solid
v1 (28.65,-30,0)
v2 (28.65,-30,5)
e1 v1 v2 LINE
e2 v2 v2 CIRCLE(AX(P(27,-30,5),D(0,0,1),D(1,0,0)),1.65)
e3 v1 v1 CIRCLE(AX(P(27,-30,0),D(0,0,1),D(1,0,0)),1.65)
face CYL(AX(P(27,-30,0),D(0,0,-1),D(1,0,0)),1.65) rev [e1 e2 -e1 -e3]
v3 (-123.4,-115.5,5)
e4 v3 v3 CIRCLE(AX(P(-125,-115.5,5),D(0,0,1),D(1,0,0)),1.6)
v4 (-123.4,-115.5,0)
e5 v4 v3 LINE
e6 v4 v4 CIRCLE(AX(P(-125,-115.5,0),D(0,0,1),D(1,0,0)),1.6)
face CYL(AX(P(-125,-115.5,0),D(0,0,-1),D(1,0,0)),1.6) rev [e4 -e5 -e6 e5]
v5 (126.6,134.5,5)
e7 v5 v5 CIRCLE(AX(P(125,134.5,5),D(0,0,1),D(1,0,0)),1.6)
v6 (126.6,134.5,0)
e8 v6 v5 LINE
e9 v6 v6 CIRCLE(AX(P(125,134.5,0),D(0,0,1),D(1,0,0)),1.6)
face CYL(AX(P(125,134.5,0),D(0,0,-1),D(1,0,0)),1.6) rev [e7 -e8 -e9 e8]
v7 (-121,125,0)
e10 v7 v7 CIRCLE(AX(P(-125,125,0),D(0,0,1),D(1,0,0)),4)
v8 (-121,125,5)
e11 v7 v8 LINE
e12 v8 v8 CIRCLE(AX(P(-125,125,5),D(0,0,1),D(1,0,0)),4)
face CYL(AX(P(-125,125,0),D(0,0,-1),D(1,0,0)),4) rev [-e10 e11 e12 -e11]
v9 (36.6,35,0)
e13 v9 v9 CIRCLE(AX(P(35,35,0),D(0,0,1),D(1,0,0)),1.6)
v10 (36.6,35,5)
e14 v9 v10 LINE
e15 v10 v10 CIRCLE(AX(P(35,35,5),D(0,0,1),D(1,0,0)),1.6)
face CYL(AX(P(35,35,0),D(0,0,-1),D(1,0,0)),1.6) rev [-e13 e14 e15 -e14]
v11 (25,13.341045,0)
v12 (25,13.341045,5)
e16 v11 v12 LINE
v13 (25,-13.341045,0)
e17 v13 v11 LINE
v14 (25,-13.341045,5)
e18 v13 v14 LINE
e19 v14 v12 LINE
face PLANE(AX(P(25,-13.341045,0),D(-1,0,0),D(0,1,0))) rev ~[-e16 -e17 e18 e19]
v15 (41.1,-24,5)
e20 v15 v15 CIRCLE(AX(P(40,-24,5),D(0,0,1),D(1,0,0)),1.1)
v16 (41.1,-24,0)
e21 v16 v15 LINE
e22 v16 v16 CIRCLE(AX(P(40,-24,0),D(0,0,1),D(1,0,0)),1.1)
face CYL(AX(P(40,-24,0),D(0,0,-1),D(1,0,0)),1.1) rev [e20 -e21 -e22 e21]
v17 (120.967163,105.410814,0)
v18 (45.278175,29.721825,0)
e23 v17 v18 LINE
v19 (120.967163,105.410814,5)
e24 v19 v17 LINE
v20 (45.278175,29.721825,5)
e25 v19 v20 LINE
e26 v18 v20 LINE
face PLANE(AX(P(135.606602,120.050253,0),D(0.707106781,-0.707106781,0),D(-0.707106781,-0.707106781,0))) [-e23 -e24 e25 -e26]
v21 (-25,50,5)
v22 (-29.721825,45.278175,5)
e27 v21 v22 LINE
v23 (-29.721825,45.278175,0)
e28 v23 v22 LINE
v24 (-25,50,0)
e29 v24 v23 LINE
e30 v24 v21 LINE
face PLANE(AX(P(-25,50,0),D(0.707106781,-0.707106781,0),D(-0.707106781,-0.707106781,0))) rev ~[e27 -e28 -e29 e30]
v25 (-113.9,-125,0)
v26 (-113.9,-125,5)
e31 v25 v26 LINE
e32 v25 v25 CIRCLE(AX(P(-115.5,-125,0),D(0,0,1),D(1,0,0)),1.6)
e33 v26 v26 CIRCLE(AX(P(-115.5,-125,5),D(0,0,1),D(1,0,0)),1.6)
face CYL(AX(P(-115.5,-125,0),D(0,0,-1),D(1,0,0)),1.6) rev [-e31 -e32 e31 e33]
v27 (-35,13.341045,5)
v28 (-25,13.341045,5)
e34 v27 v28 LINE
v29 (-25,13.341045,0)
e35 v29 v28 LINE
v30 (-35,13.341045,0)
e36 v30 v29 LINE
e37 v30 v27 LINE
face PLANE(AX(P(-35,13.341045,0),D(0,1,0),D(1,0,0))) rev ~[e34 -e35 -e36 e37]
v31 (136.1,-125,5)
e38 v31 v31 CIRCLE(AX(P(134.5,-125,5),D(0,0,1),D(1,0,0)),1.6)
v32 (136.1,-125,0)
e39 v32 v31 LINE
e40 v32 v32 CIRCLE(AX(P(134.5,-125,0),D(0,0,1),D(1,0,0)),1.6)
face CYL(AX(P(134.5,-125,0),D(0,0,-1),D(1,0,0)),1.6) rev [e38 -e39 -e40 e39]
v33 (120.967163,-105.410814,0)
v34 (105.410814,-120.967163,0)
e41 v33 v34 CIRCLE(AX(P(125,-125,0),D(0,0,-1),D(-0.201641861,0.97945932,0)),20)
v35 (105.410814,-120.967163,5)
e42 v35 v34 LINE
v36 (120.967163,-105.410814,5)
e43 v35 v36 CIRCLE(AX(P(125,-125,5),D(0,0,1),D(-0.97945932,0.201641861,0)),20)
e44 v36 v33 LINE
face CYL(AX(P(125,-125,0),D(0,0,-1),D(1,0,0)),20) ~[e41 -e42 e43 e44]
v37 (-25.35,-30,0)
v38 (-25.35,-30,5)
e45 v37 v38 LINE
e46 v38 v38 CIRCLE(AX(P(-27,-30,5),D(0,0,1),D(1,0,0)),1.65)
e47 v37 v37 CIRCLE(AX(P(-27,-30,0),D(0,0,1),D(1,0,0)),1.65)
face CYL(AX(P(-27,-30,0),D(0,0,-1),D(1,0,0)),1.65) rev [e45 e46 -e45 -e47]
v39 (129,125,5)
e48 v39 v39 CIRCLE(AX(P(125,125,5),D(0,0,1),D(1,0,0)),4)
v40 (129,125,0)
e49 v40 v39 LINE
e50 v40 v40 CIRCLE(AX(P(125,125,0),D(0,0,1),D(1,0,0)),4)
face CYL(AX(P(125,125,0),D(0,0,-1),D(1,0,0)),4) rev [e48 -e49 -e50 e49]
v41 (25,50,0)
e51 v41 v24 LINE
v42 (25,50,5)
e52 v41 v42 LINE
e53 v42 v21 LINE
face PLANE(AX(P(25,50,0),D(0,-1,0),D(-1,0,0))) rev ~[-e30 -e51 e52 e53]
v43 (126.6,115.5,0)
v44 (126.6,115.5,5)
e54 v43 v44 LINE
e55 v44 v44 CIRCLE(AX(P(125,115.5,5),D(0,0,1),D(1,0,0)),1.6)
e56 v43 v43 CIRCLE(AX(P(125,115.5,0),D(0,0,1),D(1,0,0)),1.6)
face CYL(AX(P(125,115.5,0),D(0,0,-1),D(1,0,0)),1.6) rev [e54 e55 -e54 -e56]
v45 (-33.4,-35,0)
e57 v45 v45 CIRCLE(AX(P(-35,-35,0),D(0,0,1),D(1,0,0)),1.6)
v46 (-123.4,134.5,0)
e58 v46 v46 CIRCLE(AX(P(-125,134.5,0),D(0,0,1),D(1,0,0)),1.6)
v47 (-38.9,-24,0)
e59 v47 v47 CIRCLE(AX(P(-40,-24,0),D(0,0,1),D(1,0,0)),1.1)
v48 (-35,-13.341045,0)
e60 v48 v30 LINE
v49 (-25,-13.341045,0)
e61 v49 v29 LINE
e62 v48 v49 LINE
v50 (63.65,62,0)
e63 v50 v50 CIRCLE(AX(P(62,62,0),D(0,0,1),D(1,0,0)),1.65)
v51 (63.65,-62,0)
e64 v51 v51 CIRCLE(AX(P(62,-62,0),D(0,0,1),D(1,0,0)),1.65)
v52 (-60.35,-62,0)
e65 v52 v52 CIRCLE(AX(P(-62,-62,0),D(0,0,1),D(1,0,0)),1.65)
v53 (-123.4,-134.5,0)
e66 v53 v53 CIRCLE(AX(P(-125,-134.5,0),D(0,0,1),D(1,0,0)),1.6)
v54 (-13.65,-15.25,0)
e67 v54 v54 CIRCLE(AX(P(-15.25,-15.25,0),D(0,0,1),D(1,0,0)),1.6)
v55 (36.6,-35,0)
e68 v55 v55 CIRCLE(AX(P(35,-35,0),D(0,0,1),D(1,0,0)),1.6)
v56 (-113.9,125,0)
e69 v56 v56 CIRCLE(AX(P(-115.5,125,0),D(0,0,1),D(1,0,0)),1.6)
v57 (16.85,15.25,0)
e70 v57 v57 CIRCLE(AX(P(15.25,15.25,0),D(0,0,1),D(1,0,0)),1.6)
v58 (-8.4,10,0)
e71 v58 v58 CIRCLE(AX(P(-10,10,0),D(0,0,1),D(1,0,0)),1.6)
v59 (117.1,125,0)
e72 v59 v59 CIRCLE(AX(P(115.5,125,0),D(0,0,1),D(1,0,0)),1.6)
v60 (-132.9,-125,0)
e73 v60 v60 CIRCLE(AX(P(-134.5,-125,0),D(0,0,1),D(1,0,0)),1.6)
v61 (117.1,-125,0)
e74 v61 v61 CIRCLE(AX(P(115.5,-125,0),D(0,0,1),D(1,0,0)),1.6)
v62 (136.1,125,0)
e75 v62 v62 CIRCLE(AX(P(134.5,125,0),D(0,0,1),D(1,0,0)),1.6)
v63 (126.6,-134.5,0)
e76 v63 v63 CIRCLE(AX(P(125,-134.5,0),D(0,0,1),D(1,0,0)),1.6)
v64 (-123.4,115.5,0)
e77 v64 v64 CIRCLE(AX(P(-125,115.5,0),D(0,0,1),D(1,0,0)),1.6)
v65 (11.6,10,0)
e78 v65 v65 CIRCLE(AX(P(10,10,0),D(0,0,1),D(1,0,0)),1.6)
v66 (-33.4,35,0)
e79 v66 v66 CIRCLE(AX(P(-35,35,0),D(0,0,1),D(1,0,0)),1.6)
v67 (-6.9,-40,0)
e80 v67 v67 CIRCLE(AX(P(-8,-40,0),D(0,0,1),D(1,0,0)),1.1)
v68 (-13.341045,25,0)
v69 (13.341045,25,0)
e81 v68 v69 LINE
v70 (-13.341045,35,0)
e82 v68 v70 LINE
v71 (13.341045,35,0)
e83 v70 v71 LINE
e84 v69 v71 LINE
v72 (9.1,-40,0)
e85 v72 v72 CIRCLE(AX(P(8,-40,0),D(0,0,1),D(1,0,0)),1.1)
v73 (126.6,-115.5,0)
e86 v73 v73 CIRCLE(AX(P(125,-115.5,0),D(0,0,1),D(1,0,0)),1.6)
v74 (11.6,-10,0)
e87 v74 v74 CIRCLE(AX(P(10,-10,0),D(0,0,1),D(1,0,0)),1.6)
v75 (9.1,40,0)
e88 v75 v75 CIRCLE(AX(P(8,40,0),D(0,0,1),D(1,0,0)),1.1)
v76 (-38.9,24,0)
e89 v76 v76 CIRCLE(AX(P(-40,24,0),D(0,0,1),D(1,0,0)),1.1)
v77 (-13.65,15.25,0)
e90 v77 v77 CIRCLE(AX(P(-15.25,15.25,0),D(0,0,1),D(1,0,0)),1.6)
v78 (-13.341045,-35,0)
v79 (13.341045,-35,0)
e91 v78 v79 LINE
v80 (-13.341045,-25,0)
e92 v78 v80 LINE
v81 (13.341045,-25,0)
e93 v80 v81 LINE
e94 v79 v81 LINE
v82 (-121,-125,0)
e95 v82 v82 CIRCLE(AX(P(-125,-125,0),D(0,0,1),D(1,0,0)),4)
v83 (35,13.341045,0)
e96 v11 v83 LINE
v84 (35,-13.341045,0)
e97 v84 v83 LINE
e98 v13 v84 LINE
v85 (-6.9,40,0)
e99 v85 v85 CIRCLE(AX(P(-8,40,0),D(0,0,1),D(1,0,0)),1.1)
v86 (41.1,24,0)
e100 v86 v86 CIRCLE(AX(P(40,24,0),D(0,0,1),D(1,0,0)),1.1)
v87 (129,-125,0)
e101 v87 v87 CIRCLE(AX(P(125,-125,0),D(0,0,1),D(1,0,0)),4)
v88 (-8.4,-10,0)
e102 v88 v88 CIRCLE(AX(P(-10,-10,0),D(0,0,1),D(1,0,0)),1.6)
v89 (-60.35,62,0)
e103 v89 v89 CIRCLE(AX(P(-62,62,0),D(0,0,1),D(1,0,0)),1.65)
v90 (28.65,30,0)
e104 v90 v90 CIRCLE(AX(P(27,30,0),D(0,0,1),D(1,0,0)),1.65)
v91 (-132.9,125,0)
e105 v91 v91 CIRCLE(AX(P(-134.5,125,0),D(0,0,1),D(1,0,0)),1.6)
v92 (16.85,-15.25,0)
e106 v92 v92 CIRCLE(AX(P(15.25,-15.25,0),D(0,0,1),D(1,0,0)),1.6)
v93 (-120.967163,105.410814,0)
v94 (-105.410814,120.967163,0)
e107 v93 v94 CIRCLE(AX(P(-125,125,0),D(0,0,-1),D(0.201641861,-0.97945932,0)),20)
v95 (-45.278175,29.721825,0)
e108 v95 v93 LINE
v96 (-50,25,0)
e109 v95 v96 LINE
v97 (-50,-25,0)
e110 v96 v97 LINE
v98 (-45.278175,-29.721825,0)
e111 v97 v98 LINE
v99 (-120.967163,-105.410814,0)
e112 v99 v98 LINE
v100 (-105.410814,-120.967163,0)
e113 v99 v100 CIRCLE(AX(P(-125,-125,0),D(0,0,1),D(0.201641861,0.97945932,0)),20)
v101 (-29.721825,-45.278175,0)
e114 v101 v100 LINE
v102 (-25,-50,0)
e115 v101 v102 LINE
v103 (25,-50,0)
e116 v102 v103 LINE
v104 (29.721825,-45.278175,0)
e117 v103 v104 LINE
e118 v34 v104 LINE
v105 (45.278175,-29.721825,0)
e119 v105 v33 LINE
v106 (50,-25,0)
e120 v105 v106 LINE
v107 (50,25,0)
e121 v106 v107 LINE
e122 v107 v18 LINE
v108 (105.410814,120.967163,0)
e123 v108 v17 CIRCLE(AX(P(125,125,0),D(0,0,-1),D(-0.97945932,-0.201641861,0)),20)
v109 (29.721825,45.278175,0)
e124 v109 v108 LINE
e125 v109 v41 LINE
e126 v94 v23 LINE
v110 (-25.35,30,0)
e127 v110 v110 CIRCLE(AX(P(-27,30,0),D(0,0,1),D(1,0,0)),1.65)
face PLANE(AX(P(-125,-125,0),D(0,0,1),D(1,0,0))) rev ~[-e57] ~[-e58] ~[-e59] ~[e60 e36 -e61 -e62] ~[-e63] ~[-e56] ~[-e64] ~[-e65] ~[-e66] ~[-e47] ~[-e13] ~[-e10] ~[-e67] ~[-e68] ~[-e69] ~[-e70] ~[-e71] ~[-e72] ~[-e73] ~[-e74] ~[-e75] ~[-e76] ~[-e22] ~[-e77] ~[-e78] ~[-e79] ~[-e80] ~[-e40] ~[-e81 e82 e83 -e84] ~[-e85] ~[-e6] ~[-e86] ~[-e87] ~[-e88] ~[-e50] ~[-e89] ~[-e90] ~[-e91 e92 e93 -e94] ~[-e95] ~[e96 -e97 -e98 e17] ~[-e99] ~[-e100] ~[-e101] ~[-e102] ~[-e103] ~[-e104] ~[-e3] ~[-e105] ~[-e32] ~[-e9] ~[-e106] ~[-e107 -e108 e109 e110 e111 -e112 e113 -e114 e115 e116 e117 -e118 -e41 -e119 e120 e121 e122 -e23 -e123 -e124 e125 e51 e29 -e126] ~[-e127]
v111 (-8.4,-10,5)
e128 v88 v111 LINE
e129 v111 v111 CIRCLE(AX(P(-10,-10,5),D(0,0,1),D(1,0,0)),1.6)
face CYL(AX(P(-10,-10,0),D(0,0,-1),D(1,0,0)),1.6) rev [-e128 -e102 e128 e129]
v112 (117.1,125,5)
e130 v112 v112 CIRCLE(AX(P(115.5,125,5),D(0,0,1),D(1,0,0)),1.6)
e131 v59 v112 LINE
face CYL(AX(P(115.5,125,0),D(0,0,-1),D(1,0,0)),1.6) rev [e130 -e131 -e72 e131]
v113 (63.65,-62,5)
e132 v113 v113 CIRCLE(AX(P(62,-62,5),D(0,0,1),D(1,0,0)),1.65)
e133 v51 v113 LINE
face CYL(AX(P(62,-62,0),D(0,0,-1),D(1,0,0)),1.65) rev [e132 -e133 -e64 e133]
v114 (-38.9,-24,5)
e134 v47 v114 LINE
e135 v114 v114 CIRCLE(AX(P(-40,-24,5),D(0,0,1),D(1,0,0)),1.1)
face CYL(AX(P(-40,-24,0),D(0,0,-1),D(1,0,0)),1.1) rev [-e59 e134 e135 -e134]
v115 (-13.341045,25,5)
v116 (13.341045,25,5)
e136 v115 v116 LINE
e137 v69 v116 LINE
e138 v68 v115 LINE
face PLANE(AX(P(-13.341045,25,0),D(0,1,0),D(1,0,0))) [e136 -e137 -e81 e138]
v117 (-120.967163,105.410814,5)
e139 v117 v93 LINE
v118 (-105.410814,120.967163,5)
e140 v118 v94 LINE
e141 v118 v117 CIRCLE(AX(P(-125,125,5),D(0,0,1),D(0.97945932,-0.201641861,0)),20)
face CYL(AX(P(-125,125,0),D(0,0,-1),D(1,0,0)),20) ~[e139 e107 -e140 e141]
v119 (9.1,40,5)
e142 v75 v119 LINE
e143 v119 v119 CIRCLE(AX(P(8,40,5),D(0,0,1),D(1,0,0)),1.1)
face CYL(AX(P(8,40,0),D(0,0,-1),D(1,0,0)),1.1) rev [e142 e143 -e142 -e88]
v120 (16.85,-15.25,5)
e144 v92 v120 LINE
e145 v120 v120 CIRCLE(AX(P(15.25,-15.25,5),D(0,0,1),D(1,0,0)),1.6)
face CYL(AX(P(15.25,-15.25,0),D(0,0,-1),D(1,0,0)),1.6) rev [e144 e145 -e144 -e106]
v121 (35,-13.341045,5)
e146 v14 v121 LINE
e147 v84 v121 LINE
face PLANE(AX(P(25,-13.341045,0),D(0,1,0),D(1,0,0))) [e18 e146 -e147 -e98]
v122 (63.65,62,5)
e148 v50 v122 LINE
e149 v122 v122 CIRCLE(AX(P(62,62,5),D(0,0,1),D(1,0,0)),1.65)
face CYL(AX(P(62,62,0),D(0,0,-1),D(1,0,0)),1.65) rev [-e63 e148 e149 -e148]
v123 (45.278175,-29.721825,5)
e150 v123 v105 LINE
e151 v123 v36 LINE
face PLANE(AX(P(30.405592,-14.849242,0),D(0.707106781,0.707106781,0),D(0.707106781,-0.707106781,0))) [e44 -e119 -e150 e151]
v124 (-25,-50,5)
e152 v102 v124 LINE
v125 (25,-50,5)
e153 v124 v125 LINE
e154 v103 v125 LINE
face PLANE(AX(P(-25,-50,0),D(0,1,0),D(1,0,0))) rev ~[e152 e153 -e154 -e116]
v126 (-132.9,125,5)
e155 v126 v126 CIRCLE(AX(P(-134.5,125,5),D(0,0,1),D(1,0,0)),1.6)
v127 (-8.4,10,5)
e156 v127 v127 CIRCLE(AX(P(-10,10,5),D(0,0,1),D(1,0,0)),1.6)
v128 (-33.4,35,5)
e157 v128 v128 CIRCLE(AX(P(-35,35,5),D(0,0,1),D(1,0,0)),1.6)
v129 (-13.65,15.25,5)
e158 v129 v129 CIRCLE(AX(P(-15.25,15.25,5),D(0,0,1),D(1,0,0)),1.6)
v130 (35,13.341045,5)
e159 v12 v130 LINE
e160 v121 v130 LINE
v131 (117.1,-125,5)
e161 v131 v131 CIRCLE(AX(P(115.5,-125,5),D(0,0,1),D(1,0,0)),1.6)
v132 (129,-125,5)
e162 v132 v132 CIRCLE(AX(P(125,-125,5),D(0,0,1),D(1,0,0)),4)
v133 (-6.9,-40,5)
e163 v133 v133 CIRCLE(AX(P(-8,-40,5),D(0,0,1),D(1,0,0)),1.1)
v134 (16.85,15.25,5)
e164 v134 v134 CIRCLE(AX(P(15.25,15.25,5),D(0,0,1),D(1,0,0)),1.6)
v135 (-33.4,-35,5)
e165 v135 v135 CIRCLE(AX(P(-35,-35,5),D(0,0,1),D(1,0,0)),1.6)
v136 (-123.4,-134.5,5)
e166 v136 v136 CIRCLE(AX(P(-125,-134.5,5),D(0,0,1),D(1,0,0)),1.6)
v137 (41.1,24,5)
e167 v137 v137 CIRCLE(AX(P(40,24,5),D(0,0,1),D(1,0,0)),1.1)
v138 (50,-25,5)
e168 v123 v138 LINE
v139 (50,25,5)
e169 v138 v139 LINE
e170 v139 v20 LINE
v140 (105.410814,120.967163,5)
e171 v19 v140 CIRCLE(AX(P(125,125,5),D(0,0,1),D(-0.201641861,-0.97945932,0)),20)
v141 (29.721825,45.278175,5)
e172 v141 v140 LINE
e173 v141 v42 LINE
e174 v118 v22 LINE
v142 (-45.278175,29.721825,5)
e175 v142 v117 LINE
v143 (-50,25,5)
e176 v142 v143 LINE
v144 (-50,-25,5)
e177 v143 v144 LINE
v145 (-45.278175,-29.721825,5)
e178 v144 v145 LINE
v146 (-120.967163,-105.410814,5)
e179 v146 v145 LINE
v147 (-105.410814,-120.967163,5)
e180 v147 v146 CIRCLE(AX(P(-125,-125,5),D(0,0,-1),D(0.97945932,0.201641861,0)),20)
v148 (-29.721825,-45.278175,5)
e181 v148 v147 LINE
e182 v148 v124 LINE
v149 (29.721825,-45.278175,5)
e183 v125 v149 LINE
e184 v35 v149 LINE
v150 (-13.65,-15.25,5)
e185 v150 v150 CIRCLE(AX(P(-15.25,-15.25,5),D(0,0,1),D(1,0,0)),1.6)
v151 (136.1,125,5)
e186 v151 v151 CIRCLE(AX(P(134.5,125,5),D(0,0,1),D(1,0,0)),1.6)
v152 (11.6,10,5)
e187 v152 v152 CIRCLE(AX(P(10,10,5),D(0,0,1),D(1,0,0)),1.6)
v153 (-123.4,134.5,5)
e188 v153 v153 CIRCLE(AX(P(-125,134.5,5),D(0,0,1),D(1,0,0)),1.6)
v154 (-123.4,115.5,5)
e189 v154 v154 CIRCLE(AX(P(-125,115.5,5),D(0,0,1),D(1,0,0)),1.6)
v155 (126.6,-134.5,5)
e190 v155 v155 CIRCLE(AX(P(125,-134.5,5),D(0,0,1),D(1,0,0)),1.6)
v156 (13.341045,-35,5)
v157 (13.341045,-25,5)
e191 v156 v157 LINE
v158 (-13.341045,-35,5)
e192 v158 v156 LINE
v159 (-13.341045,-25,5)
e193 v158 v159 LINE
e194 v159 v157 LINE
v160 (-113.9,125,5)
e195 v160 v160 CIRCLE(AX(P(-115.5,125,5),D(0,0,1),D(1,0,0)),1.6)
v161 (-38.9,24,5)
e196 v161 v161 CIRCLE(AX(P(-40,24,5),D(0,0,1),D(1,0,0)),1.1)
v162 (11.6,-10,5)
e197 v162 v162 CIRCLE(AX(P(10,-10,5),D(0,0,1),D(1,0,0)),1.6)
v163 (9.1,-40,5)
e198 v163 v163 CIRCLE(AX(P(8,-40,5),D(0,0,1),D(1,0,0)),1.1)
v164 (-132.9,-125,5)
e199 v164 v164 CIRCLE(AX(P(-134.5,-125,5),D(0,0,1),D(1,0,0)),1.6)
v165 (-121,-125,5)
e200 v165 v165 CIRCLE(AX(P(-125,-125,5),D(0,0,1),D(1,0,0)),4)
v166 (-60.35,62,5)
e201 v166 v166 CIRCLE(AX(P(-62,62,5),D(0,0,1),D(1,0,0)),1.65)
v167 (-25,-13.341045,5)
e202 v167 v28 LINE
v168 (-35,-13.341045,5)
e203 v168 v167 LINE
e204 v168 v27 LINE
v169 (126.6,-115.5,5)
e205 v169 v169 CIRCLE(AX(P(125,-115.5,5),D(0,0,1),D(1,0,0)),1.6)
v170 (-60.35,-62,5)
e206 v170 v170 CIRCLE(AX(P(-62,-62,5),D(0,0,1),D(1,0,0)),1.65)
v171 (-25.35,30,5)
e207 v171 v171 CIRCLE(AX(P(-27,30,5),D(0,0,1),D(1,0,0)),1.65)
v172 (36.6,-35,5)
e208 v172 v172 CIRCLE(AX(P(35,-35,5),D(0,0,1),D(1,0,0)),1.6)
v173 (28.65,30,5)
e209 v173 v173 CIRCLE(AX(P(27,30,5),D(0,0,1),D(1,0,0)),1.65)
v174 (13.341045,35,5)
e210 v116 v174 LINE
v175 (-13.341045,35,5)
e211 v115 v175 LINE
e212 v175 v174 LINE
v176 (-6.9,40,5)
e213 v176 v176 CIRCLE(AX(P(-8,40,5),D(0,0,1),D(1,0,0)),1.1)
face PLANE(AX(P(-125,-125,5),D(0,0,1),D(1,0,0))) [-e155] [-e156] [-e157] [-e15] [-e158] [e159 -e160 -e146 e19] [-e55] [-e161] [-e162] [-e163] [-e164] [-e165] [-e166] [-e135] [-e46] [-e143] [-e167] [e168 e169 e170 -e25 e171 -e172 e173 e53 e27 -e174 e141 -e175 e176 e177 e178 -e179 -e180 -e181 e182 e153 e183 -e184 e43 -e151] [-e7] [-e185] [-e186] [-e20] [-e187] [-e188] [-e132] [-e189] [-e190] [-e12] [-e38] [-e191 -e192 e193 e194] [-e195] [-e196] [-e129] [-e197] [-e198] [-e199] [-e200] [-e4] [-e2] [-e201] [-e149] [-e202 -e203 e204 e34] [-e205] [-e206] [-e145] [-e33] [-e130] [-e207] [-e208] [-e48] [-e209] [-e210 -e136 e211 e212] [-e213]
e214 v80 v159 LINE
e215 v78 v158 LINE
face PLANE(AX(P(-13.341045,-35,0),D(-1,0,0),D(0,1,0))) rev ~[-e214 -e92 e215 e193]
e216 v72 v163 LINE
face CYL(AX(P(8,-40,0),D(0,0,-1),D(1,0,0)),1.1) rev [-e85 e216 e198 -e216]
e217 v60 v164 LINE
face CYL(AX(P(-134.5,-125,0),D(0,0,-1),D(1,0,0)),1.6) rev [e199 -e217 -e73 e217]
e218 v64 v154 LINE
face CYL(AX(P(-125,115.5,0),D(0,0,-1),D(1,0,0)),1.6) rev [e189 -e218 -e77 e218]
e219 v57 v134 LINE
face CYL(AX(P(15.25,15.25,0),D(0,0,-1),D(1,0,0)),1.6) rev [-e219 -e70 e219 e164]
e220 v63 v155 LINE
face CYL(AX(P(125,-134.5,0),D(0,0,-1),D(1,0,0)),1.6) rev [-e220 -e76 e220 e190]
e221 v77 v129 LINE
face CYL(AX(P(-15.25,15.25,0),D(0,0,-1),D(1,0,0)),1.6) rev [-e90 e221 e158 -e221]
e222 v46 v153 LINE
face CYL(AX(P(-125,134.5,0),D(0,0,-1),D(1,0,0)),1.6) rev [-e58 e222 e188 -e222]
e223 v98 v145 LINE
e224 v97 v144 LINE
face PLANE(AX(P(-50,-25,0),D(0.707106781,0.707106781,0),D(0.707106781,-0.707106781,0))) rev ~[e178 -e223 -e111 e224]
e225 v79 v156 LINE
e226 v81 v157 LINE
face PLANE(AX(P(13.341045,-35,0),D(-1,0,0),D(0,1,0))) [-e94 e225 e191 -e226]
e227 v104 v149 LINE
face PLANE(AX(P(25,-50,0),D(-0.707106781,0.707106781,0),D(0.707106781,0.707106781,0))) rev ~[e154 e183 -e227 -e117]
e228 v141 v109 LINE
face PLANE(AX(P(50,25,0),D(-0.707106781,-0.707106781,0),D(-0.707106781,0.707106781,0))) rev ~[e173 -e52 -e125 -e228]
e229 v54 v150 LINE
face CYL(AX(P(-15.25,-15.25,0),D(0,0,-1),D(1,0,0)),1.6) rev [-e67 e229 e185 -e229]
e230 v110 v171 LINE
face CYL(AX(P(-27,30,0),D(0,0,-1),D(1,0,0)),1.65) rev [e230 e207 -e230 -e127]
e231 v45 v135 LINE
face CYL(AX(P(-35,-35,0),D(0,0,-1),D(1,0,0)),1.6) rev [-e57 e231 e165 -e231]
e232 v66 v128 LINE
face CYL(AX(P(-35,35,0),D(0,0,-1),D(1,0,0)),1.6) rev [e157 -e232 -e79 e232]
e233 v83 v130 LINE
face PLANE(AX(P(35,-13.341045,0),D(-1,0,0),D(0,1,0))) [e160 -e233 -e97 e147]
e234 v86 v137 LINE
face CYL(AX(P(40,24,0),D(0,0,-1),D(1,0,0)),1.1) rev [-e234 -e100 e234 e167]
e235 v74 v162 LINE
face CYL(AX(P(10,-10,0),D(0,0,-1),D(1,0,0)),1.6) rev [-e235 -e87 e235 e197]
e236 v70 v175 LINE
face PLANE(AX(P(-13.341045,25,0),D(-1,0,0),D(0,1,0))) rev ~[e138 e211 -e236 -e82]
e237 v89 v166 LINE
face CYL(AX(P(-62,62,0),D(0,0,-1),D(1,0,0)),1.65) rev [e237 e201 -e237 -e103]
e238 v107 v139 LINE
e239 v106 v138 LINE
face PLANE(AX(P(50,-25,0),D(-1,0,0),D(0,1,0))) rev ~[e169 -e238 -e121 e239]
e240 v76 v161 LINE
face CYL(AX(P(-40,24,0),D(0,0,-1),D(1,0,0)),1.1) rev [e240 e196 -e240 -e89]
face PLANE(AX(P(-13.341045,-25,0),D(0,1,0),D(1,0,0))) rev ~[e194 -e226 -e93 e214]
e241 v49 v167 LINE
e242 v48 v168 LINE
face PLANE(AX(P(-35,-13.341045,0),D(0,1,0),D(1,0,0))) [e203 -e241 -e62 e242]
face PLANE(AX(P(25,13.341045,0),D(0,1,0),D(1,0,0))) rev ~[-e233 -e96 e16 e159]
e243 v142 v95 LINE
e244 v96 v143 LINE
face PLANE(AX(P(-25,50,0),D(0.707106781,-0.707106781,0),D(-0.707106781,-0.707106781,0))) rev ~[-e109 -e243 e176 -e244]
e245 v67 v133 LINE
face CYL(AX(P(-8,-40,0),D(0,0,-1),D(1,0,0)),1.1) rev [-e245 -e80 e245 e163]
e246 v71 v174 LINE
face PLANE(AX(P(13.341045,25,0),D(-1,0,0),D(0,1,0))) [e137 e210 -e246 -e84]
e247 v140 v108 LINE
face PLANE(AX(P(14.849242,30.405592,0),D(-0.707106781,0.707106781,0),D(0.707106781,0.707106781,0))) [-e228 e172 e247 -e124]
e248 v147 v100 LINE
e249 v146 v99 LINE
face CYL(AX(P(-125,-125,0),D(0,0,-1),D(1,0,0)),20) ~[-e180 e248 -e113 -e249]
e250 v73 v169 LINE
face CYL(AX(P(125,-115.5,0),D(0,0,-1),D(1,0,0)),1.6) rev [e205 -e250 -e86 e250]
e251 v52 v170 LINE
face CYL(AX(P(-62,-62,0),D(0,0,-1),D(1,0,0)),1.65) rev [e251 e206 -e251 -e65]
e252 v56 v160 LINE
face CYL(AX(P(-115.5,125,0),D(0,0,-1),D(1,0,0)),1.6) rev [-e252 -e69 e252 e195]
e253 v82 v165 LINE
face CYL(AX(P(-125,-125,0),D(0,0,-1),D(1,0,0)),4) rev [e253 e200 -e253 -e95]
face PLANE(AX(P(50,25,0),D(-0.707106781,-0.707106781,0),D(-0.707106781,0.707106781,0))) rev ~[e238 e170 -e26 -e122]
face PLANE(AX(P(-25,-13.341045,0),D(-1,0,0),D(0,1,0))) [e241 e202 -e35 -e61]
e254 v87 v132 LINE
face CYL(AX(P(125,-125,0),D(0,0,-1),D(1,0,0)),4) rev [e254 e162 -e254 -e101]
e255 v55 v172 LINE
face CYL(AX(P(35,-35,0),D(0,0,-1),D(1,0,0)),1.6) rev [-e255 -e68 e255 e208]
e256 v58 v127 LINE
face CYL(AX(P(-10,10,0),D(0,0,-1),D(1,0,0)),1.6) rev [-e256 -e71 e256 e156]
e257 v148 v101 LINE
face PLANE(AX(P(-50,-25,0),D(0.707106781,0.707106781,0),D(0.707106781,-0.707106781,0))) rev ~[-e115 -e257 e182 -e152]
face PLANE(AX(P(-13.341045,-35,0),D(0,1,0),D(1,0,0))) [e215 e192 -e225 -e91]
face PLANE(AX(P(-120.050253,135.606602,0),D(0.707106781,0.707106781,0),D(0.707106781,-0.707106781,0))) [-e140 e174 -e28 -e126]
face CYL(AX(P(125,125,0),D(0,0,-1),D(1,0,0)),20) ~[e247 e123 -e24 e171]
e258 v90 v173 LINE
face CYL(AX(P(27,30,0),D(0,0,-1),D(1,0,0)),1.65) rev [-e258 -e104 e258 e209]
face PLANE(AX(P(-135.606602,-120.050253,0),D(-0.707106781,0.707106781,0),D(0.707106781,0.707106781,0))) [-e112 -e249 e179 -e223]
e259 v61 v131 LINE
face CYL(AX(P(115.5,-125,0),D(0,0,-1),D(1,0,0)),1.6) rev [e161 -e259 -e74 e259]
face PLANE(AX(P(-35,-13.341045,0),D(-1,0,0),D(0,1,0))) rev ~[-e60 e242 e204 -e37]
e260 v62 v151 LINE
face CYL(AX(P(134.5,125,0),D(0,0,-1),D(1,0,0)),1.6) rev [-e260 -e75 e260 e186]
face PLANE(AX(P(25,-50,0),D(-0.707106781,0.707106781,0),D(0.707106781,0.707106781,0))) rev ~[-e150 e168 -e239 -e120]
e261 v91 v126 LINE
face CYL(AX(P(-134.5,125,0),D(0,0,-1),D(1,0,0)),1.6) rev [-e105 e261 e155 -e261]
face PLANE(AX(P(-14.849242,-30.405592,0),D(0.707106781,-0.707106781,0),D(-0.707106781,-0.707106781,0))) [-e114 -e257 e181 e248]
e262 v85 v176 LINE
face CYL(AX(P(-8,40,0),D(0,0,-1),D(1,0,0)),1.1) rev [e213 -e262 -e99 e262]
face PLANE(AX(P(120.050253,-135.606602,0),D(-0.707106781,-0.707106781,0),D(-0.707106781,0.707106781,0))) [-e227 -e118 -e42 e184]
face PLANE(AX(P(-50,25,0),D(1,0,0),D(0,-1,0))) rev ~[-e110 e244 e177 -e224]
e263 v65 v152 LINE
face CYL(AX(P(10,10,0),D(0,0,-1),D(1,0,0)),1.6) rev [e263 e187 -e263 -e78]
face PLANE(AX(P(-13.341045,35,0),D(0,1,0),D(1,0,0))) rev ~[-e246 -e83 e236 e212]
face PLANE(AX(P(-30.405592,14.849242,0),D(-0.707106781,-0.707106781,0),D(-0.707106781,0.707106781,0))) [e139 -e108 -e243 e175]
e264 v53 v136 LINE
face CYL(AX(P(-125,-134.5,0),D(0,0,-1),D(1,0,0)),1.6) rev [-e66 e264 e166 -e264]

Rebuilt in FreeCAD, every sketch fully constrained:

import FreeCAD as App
import Part
import Sketcher
Q = App.Units.Quantity

doc = App.newDocument("Part")
body = doc.addObject("PartDesign::Body", "Body")

sketch1 = body.newObject("Sketcher::SketchObject", "Sketch")
sketch1.AttachmentSupport = (doc.getObject("XY_Plane"), [""])
sketch1.MapMode = "FlatFace"
sketch1.addGeometry(Part.LineSegment(App.Vector(50, 25, 0), App.Vector(25, 50, 0)), False)
sketch1.addGeometry(Part.LineSegment(App.Vector(25, 50, 0), App.Vector(-25, 50, 0)), False)
sketch1.addGeometry(Part.LineSegment(App.Vector(-25, 50, 0), App.Vector(-50, 25, 0)), False)
sketch1.addGeometry(Part.LineSegment(App.Vector(-50, 25, 0), App.Vector(-50, -25, 0)), False)
sketch1.addGeometry(Part.LineSegment(App.Vector(-50, -25, 0), App.Vector(-25, -50, 0)), False)
sketch1.addGeometry(Part.LineSegment(App.Vector(-25, -50, 0), App.Vector(25, -50, 0)), False)
sketch1.addGeometry(Part.LineSegment(App.Vector(25, -50, 0), App.Vector(50, -25, 0)), False)
sketch1.addGeometry(Part.LineSegment(App.Vector(50, -25, 0), App.Vector(50, 25, 0)), False)
sketch1.addConstraint(Sketcher.Constraint("Coincident", 0, 2, 1, 1))
sketch1.addConstraint(Sketcher.Constraint("Coincident", 1, 2, 2, 1))
sketch1.addConstraint(Sketcher.Constraint("Coincident", 2, 2, 3, 1))
sketch1.addConstraint(Sketcher.Constraint("Coincident", 3, 2, 4, 1))
sketch1.addConstraint(Sketcher.Constraint("Coincident", 4, 2, 5, 1))
sketch1.addConstraint(Sketcher.Constraint("Coincident", 5, 2, 6, 1))
sketch1.addConstraint(Sketcher.Constraint("Coincident", 6, 2, 7, 1))
sketch1.addConstraint(Sketcher.Constraint("Coincident", 7, 2, 0, 1))
sketch1.addConstraint(Sketcher.Constraint("Horizontal", 1))
sketch1.addConstraint(Sketcher.Constraint("Vertical", 3))
sketch1.addConstraint(Sketcher.Constraint("Horizontal", 5))
sketch1.addConstraint(Sketcher.Constraint("Vertical", 7))
sketch1.addConstraint(Sketcher.Constraint("Symmetric", 0, 2, 4, 2, -1, 1))
sketch1.addConstraint(Sketcher.Constraint("Symmetric", 2, 2, 6, 2, -1, 1))
sketch1.addConstraint(Sketcher.Constraint("Perpendicular", 0, 2))
sketch1.addConstraint(Sketcher.Constraint("Perpendicular", 2, 4))
sketch1.addConstraint(Sketcher.Constraint("Perpendicular", 4, 6))
sketch1.addConstraint(Sketcher.Constraint("Horizontal", 3, 2, 6, 2))
sketch1.addConstraint(Sketcher.Constraint("Vertical", 1, 2, 4, 2))
sketch1.addConstraint(Sketcher.Constraint("Equal", 5, 3))
sketch1.addConstraint(Sketcher.Constraint("DistanceX", 1, 2, 1, 1, Q("50 mm")))
sketch1.addConstraint(Sketcher.Constraint("DistanceY", -1, 1, 0, 2, Q("50 mm")))
pad1 = body.newObject("PartDesign::Pad", "Pad")
pad1.Profile = sketch1
pad1.Length = 5

sketch2 = body.newObject("Sketcher::SketchObject", "Sketch001")
sketch2.AttachmentSupport = (doc.getObject("XY_Plane"), [""])
sketch2.MapMode = "FlatFace"
sketch2.addGeometry(Part.LineSegment(App.Vector(120, 136, 0), App.Vector(15, 30, 0)), False)
sketch2.addGeometry(Part.LineSegment(App.Vector(15, 30, 0), App.Vector(30, 15, 0)), False)
sketch2.addGeometry(Part.LineSegment(App.Vector(30, 15, 0), App.Vector(136, 120, 0)), False)
sketch2.addGeometry(Part.LineSegment(App.Vector(136, 120, 0), App.Vector(120, 136, 0)), False)
sketch2.addGeometry(Part.LineSegment(App.Vector(-136, 120, 0), App.Vector(-30, 15, 0)), False)
sketch2.addGeometry(Part.LineSegment(App.Vector(-30, 15, 0), App.Vector(-15, 30, 0)), False)
sketch2.addGeometry(Part.LineSegment(App.Vector(-15, 30, 0), App.Vector(-120, 136, 0)), False)
sketch2.addGeometry(Part.LineSegment(App.Vector(-120, 136, 0), App.Vector(-136, 120, 0)), False)
sketch2.addGeometry(Part.LineSegment(App.Vector(-120, -136, 0), App.Vector(-15, -30, 0)), False)
sketch2.addGeometry(Part.LineSegment(App.Vector(-15, -30, 0), App.Vector(-30, -15, 0)), False)
sketch2.addGeometry(Part.LineSegment(App.Vector(-30, -15, 0), App.Vector(-136, -120, 0)), False)
sketch2.addGeometry(Part.LineSegment(App.Vector(-136, -120, 0), App.Vector(-120, -136, 0)), False)
sketch2.addGeometry(Part.LineSegment(App.Vector(136, -120, 0), App.Vector(30, -15, 0)), False)
sketch2.addGeometry(Part.LineSegment(App.Vector(30, -15, 0), App.Vector(15, -30, 0)), False)
sketch2.addGeometry(Part.LineSegment(App.Vector(15, -30, 0), App.Vector(120, -136, 0)), False)
sketch2.addGeometry(Part.LineSegment(App.Vector(120, -136, 0), App.Vector(136, -120, 0)), False)
sketch2.addConstraint(Sketcher.Constraint("Coincident", 0, 2, 1, 1))
sketch2.addConstraint(Sketcher.Constraint("Coincident", 1, 2, 2, 1))
sketch2.addConstraint(Sketcher.Constraint("Coincident", 2, 2, 3, 1))
sketch2.addConstraint(Sketcher.Constraint("Coincident", 3, 2, 0, 1))
sketch2.addConstraint(Sketcher.Constraint("Coincident", 4, 2, 5, 1))
sketch2.addConstraint(Sketcher.Constraint("Coincident", 5, 2, 6, 1))
sketch2.addConstraint(Sketcher.Constraint("Coincident", 6, 2, 7, 1))
sketch2.addConstraint(Sketcher.Constraint("Coincident", 7, 2, 4, 1))
sketch2.addConstraint(Sketcher.Constraint("Coincident", 8, 2, 9, 1))
sketch2.addConstraint(Sketcher.Constraint("Coincident", 9, 2, 10, 1))
sketch2.addConstraint(Sketcher.Constraint("Coincident", 10, 2, 11, 1))
sketch2.addConstraint(Sketcher.Constraint("Coincident", 11, 2, 8, 1))
sketch2.addConstraint(Sketcher.Constraint("Coincident", 12, 2, 13, 1))
sketch2.addConstraint(Sketcher.Constraint("Coincident", 13, 2, 14, 1))
sketch2.addConstraint(Sketcher.Constraint("Coincident", 14, 2, 15, 1))
sketch2.addConstraint(Sketcher.Constraint("Coincident", 15, 2, 12, 1))
sketch2.addConstraint(Sketcher.Constraint("Symmetric", 0, 2, 8, 2, -1, 1))
sketch2.addConstraint(Sketcher.Constraint("Symmetric", 1, 2, 9, 2, -1, 1))
sketch2.addConstraint(Sketcher.Constraint("Symmetric", 2, 2, 10, 2, -1, 1))
sketch2.addConstraint(Sketcher.Constraint("Symmetric", 3, 2, 11, 2, -1, 1))
sketch2.addConstraint(Sketcher.Constraint("Symmetric", 4, 2, 12, 2, -1, 1))
sketch2.addConstraint(Sketcher.Constraint("Symmetric", 5, 2, 13, 2, -1, 1))
sketch2.addConstraint(Sketcher.Constraint("Symmetric", 6, 2, 14, 2, -1, 1))
sketch2.addConstraint(Sketcher.Constraint("Symmetric", 7, 2, 15, 2, -1, 1))
sketch2.addConstraint(Sketcher.Constraint("Symmetric", 1, 2, 4, 2, -2))
sketch2.addConstraint(Sketcher.Constraint("Symmetric", 0, 2, 5, 2, -2))
sketch2.addConstraint(Sketcher.Constraint("Symmetric", 3, 2, 6, 2, -2))
sketch2.addConstraint(Sketcher.Constraint("Symmetric", 2, 2, 7, 2, -2))
sketch2.addConstraint(Sketcher.Constraint("Perpendicular", 0, 1))
sketch2.addConstraint(Sketcher.Constraint("Perpendicular", 1, 2))
sketch2.addConstraint(Sketcher.Constraint("Perpendicular", 2, 3))
sketch2.addConstraint(Sketcher.Constraint("Parallel", 3, 4))
sketch2.addConstraint(Sketcher.Constraint("Distance", 1, Q("22 mm")))
sketch2.addConstraint(Sketcher.Constraint("DistanceX", -1, 1, 2, 2, Q("135.606602 mm")))
sketch2.addConstraint(Sketcher.Constraint("DistanceY", -1, 1, 3, 2, Q("135.606602 mm")))
sketch2.addConstraint(Sketcher.Constraint("DistanceY", -1, 1, 0, 2, Q("30.405592 mm")))
pad2 = body.newObject("PartDesign::Pad", "Pad001")
pad2.Profile = sketch2
pad2.Length = 5

sketch3 = body.newObject("Sketcher::SketchObject", "Sketch002")
sketch3.AttachmentSupport = (doc.getObject("XY_Plane"), [""])
sketch3.MapMode = "FlatFace"
sketch3.addGeometry(Part.Circle(App.Vector(-125, -125, 0), App.Vector(0, 0, 1), 20), False)
sketch3.addGeometry(Part.Circle(App.Vector(-125, 125, 0), App.Vector(0, 0, 1), 20), False)
sketch3.addGeometry(Part.Circle(App.Vector(125, -125, 0), App.Vector(0, 0, 1), 20), False)
sketch3.addGeometry(Part.Circle(App.Vector(125, 125, 0), App.Vector(0, 0, 1), 20), False)
sketch3.addConstraint(Sketcher.Constraint("Equal", 0, 1))
sketch3.addConstraint(Sketcher.Constraint("Equal", 1, 2))
sketch3.addConstraint(Sketcher.Constraint("Equal", 2, 3))
sketch3.addConstraint(Sketcher.Constraint("Symmetric", 1, 3, 2, 3, -1, 1))
sketch3.addConstraint(Sketcher.Constraint("Symmetric", 0, 3, 3, 3, -1, 1))
sketch3.addConstraint(Sketcher.Constraint("Symmetric", 0, 3, 2, 3, -2))
sketch3.addConstraint(Sketcher.Constraint("Diameter", 0, Q("40 mm")))
sketch3.addConstraint(Sketcher.Constraint("DistanceX", 0, 3, -1, 1, Q("125 mm")))
sketch3.addConstraint(Sketcher.Constraint("DistanceY", 0, 3, -1, 1, Q("125 mm")))
pad3 = body.newObject("PartDesign::Pad", "Pad002")
pad3.Profile = sketch3
pad3.Length = 5

sketch4 = body.newObject("Sketcher::SketchObject", "Sketch003")
sketch4.AttachmentSupport = (doc.getObject("XY_Plane"), [""])
sketch4.MapMode = "FlatFace"
sketch4.addGeometry(Part.Circle(App.Vector(-125, -125, 0), App.Vector(0, 0, 1), 4), False)
sketch4.addGeometry(Part.Circle(App.Vector(-35, -35, 0), App.Vector(0, 0, 1), 1.6), False)
sketch4.addGeometry(Part.Circle(App.Vector(-8, -40, 0), App.Vector(0, 0, 1), 1.1), False)
sketch4.addGeometry(Part.Circle(App.Vector(-125, 125, 0), App.Vector(0, 0, 1), 4), False)
sketch4.addGeometry(Part.Circle(App.Vector(-35, 35, 0), App.Vector(0, 0, 1), 1.6), False)
sketch4.addGeometry(Part.Circle(App.Vector(-8, 40, 0), App.Vector(0, 0, 1), 1.1), False)
sketch4.addGeometry(Part.Circle(App.Vector(125, -125, 0), App.Vector(0, 0, 1), 4), False)
sketch4.addGeometry(Part.Circle(App.Vector(35, -35, 0), App.Vector(0, 0, 1), 1.6), False)
sketch4.addGeometry(Part.Circle(App.Vector(8, -40, 0), App.Vector(0, 0, 1), 1.1), False)
sketch4.addGeometry(Part.Circle(App.Vector(125, 125, 0), App.Vector(0, 0, 1), 4), False)
sketch4.addGeometry(Part.Circle(App.Vector(35, 35, 0), App.Vector(0, 0, 1), 1.6), False)
sketch4.addGeometry(Part.Circle(App.Vector(8, 40, 0), App.Vector(0, 0, 1), 1.1), False)
sketch4.addGeometry(Part.Circle(App.Vector(-15.2, -15.2, 0), App.Vector(0, 0, 1), 1.6), False)
sketch4.addGeometry(Part.Circle(App.Vector(-15.2, 15.2, 0), App.Vector(0, 0, 1), 1.6), False)
sketch4.addGeometry(Part.Circle(App.Vector(15.2, -15.2, 0), App.Vector(0, 0, 1), 1.6), False)
sketch4.addGeometry(Part.Circle(App.Vector(15.2, 15.2, 0), App.Vector(0, 0, 1), 1.6), False)
sketch4.addGeometry(Part.Circle(App.Vector(-10, -10, 0), App.Vector(0, 0, 1), 1.6), False)
sketch4.addGeometry(Part.Circle(App.Vector(-10, 10, 0), App.Vector(0, 0, 1), 1.6), False)
sketch4.addGeometry(Part.Circle(App.Vector(10, -10, 0), App.Vector(0, 0, 1), 1.6), False)
sketch4.addGeometry(Part.Circle(App.Vector(10, 10, 0), App.Vector(0, 0, 1), 1.6), False)
sketch4.addGeometry(Part.Circle(App.Vector(-134.5, -125, 0), App.Vector(0, 0, 1), 1.6), False)
sketch4.addGeometry(Part.Circle(App.Vector(-125, -134.5, 0), App.Vector(0, 0, 1), 1.6), False)
sketch4.addGeometry(Part.Circle(App.Vector(-115.5, -125, 0), App.Vector(0, 0, 1), 1.6), False)
sketch4.addGeometry(Part.Circle(App.Vector(-125, -115.5, 0), App.Vector(0, 0, 1), 1.6), False)
sketch4.addGeometry(Part.Circle(App.Vector(-134.5, 125, 0), App.Vector(0, 0, 1), 1.6), False)
sketch4.addGeometry(Part.Circle(App.Vector(-125, 115.5, 0), App.Vector(0, 0, 1), 1.6), False)
sketch4.addGeometry(Part.Circle(App.Vector(-115.5, 125, 0), App.Vector(0, 0, 1), 1.6), False)
sketch4.addGeometry(Part.Circle(App.Vector(-125, 134.5, 0), App.Vector(0, 0, 1), 1.6), False)
sketch4.addGeometry(Part.Circle(App.Vector(115.5, -125, 0), App.Vector(0, 0, 1), 1.6), False)
sketch4.addGeometry(Part.Circle(App.Vector(125, -134.5, 0), App.Vector(0, 0, 1), 1.6), False)
sketch4.addGeometry(Part.Circle(App.Vector(134.5, -125, 0), App.Vector(0, 0, 1), 1.6), False)
sketch4.addGeometry(Part.Circle(App.Vector(125, -115.5, 0), App.Vector(0, 0, 1), 1.6), False)
sketch4.addGeometry(Part.Circle(App.Vector(115.5, 125, 0), App.Vector(0, 0, 1), 1.6), False)
sketch4.addGeometry(Part.Circle(App.Vector(125, 115.5, 0), App.Vector(0, 0, 1), 1.6), False)
sketch4.addGeometry(Part.Circle(App.Vector(134.5, 125, 0), App.Vector(0, 0, 1), 1.6), False)
sketch4.addGeometry(Part.Circle(App.Vector(125, 134.5, 0), App.Vector(0, 0, 1), 1.6), False)
sketch4.addConstraint(Sketcher.Constraint("Equal", 0, 3))
sketch4.addConstraint(Sketcher.Constraint("Equal", 1, 4))
sketch4.addConstraint(Sketcher.Constraint("Equal", 2, 5))
sketch4.addConstraint(Sketcher.Constraint("Equal", 3, 6))
sketch4.addConstraint(Sketcher.Constraint("Equal", 4, 7))
sketch4.addConstraint(Sketcher.Constraint("Equal", 5, 8))
sketch4.addConstraint(Sketcher.Constraint("Equal", 6, 9))
sketch4.addConstraint(Sketcher.Constraint("Equal", 7, 10))
sketch4.addConstraint(Sketcher.Constraint("Equal", 8, 11))
sketch4.addConstraint(Sketcher.Constraint("Equal", 10, 12))
sketch4.addConstraint(Sketcher.Constraint("Equal", 12, 13))
sketch4.addConstraint(Sketcher.Constraint("Equal", 13, 14))
sketch4.addConstraint(Sketcher.Constraint("Equal", 14, 15))
sketch4.addConstraint(Sketcher.Constraint("Equal", 15, 16))
sketch4.addConstraint(Sketcher.Constraint("Equal", 16, 17))
sketch4.addConstraint(Sketcher.Constraint("Equal", 17, 18))
sketch4.addConstraint(Sketcher.Constraint("Equal", 18, 19))
sketch4.addConstraint(Sketcher.Constraint("Equal", 19, 20))
sketch4.addConstraint(Sketcher.Constraint("Equal", 20, 21))
sketch4.addConstraint(Sketcher.Constraint("Equal", 21, 22))
sketch4.addConstraint(Sketcher.Constraint("Equal", 22, 23))
sketch4.addConstraint(Sketcher.Constraint("Equal", 23, 24))
sketch4.addConstraint(Sketcher.Constraint("Equal", 24, 25))
sketch4.addConstraint(Sketcher.Constraint("Equal", 25, 26))
sketch4.addConstraint(Sketcher.Constraint("Equal", 26, 27))
sketch4.addConstraint(Sketcher.Constraint("Equal", 27, 28))
sketch4.addConstraint(Sketcher.Constraint("Equal", 28, 29))
sketch4.addConstraint(Sketcher.Constraint("Equal", 29, 30))
sketch4.addConstraint(Sketcher.Constraint("Equal", 30, 31))
sketch4.addConstraint(Sketcher.Constraint("Equal", 31, 32))
sketch4.addConstraint(Sketcher.Constraint("Equal", 32, 33))
sketch4.addConstraint(Sketcher.Constraint("Equal", 33, 34))
sketch4.addConstraint(Sketcher.Constraint("Equal", 34, 35))
sketch4.addConstraint(Sketcher.Constraint("Symmetric", 3, 3, 6, 3, -1, 1))
sketch4.addConstraint(Sketcher.Constraint("Symmetric", 4, 3, 7, 3, -1, 1))
sketch4.addConstraint(Sketcher.Constraint("Symmetric", 5, 3, 8, 3, -1, 1))
sketch4.addConstraint(Sketcher.Constraint("Symmetric", 0, 3, 9, 3, -1, 1))
sketch4.addConstraint(Sketcher.Constraint("Symmetric", 1, 3, 10, 3, -1, 1))
sketch4.addConstraint(Sketcher.Constraint("Symmetric", 2, 3, 11, 3, -1, 1))
sketch4.addConstraint(Sketcher.Constraint("Symmetric", 13, 3, 14, 3, -1, 1))
sketch4.addConstraint(Sketcher.Constraint("Symmetric", 12, 3, 15, 3, -1, 1))
sketch4.addConstraint(Sketcher.Constraint("Symmetric", 17, 3, 18, 3, -1, 1))
sketch4.addConstraint(Sketcher.Constraint("Symmetric", 16, 3, 19, 3, -1, 1))
sketch4.addConstraint(Sketcher.Constraint("Symmetric", 26, 3, 28, 3, -1, 1))
sketch4.addConstraint(Sketcher.Constraint("Symmetric", 27, 3, 29, 3, -1, 1))
sketch4.addConstraint(Sketcher.Constraint("Symmetric", 24, 3, 30, 3, -1, 1))
sketch4.addConstraint(Sketcher.Constraint("Symmetric", 25, 3, 31, 3, -1, 1))
sketch4.addConstraint(Sketcher.Constraint("Symmetric", 22, 3, 32, 3, -1, 1))
sketch4.addConstraint(Sketcher.Constraint("Symmetric", 23, 3, 33, 3, -1, 1))
sketch4.addConstraint(Sketcher.Constraint("Symmetric", 20, 3, 34, 3, -1, 1))
sketch4.addConstraint(Sketcher.Constraint("Symmetric", 21, 3, 35, 3, -1, 1))
sketch4.addConstraint(Sketcher.Constraint("Symmetric", 0, 3, 6, 3, -2))
sketch4.addConstraint(Sketcher.Constraint("Symmetric", 1, 3, 7, 3, -2))
sketch4.addConstraint(Sketcher.Constraint("Symmetric", 2, 3, 8, 3, -2))
sketch4.addConstraint(Sketcher.Constraint("Symmetric", 12, 3, 14, 3, -2))
sketch4.addConstraint(Sketcher.Constraint("Symmetric", 16, 3, 18, 3, -2))
sketch4.addConstraint(Sketcher.Constraint("Symmetric", 22, 3, 28, 3, -2))
sketch4.addConstraint(Sketcher.Constraint("Symmetric", 21, 3, 29, 3, -2))
sketch4.addConstraint(Sketcher.Constraint("Symmetric", 20, 3, 30, 3, -2))
sketch4.addConstraint(Sketcher.Constraint("Symmetric", 23, 3, 31, 3, -2))
sketch4.addConstraint(Sketcher.Constraint("Horizontal", 6, 3, 20, 3))
sketch4.addConstraint(Sketcher.Constraint("Horizontal", 20, 3, 22, 3))
sketch4.addConstraint(Sketcher.Constraint("Vertical", 3, 3, 21, 3))
sketch4.addConstraint(Sketcher.Constraint("Vertical", 21, 3, 23, 3))
sketch4.addConstraint(Sketcher.Constraint("Diameter", 0, Q("8 mm")))
sketch4.addConstraint(Sketcher.Constraint("Diameter", 1, Q("3.2 mm")))
sketch4.addConstraint(Sketcher.Constraint("Diameter", 2, Q("2.2 mm")))
sketch4.addConstraint(Sketcher.Constraint("DistanceX", 0, 3, -1, 1, Q("125 mm")))
sketch4.addConstraint(Sketcher.Constraint("DistanceY", 0, 3, -1, 1, Q("125 mm")))
sketch4.addConstraint(Sketcher.Constraint("DistanceX", 1, 3, -1, 1, Q("35 mm")))
sketch4.addConstraint(Sketcher.Constraint("DistanceY", 1, 3, -1, 1, Q("35 mm")))
sketch4.addConstraint(Sketcher.Constraint("DistanceX", 2, 3, -1, 1, Q("8 mm")))
sketch4.addConstraint(Sketcher.Constraint("DistanceY", 2, 3, -1, 1, Q("40 mm")))
sketch4.addConstraint(Sketcher.Constraint("DistanceX", 16, 3, -1, 1, Q("10 mm")))
sketch4.addConstraint(Sketcher.Constraint("DistanceY", 16, 3, -1, 1, Q("10 mm")))
sketch4.addConstraint(Sketcher.Constraint("DistanceX", 20, 3, 22, 3, Q("19 mm")))
sketch4.addConstraint(Sketcher.Constraint("DistanceY", 21, 3, 23, 3, Q("19 mm")))
sketch4.addConstraint(Sketcher.Constraint("DistanceX", 20, 3, -1, 1, Q("134.5 mm")))
sketch4.addConstraint(Sketcher.Constraint("DistanceY", 21, 3, -1, 1, Q("134.5 mm")))
sketch4.addConstraint(Sketcher.Constraint("DistanceY", 12, 3, 13, 3, Q("30.5 mm")))
sketch4.addConstraint(Sketcher.Constraint("DistanceX", 12, 3, 14, 3, Q("30.5 mm")))
pocket1 = body.newObject("PartDesign::Pocket", "Pocket")
pocket1.Profile = sketch4
pocket1.Length = 5
pocket1.Reversed = True

sketch5 = body.newObject("Sketcher::SketchObject", "Sketch004")
sketch5.AttachmentSupport = (doc.getObject("XY_Plane"), [""])
sketch5.MapMode = "FlatFace"
sketch5.addGeometry(Part.Circle(App.Vector(-40, -24, 0), App.Vector(0, 0, 1), 1.1), False)
sketch5.addGeometry(Part.Circle(App.Vector(-40, 24, 0), App.Vector(0, 0, 1), 1.1), False)
sketch5.addGeometry(Part.Circle(App.Vector(40, -24, 0), App.Vector(0, 0, 1), 1.1), False)
sketch5.addGeometry(Part.Circle(App.Vector(40, 24, 0), App.Vector(0, 0, 1), 1.1), False)
sketch5.addConstraint(Sketcher.Constraint("Equal", 0, 1))
sketch5.addConstraint(Sketcher.Constraint("Equal", 1, 2))
sketch5.addConstraint(Sketcher.Constraint("Equal", 2, 3))
sketch5.addConstraint(Sketcher.Constraint("Symmetric", 1, 3, 2, 3, -1, 1))
sketch5.addConstraint(Sketcher.Constraint("Symmetric", 0, 3, 3, 3, -1, 1))
sketch5.addConstraint(Sketcher.Constraint("Symmetric", 0, 3, 2, 3, -2))
sketch5.addConstraint(Sketcher.Constraint("Diameter", 0, Q("2.2 mm")))
sketch5.addConstraint(Sketcher.Constraint("DistanceX", 0, 3, -1, 1, Q("40 mm")))
sketch5.addConstraint(Sketcher.Constraint("DistanceY", 0, 3, -1, 1, Q("24 mm")))
pocket2 = body.newObject("PartDesign::Pocket", "Pocket001")
pocket2.Profile = sketch5
pocket2.Length = 5
pocket2.Reversed = True

sketch6 = body.newObject("Sketcher::SketchObject", "Sketch005")
sketch6.AttachmentSupport = (doc.getObject("XY_Plane"), [""])
sketch6.MapMode = "FlatFace"
sketch6.addGeometry(Part.Circle(App.Vector(-62, -62, 0), App.Vector(0, 0, 1), 1.6), False)
sketch6.addGeometry(Part.Circle(App.Vector(-62, 62, 0), App.Vector(0, 0, 1), 1.6), False)
sketch6.addGeometry(Part.Circle(App.Vector(62, -62, 0), App.Vector(0, 0, 1), 1.6), False)
sketch6.addGeometry(Part.Circle(App.Vector(62, 62, 0), App.Vector(0, 0, 1), 1.6), False)
sketch6.addConstraint(Sketcher.Constraint("Equal", 0, 1))
sketch6.addConstraint(Sketcher.Constraint("Equal", 1, 2))
sketch6.addConstraint(Sketcher.Constraint("Equal", 2, 3))
sketch6.addConstraint(Sketcher.Constraint("Symmetric", 1, 3, 2, 3, -1, 1))
sketch6.addConstraint(Sketcher.Constraint("Symmetric", 0, 3, 3, 3, -1, 1))
sketch6.addConstraint(Sketcher.Constraint("Symmetric", 0, 3, 2, 3, -2))
sketch6.addConstraint(Sketcher.Constraint("Diameter", 0, Q("3.3 mm")))
sketch6.addConstraint(Sketcher.Constraint("DistanceX", 0, 3, -1, 1, Q("62 mm")))
sketch6.addConstraint(Sketcher.Constraint("DistanceY", 0, 3, -1, 1, Q("62 mm")))
pocket3 = body.newObject("PartDesign::Pocket", "Pocket002")
pocket3.Profile = sketch6
pocket3.Length = 5
pocket3.Reversed = True

sketch7 = body.newObject("Sketcher::SketchObject", "Sketch006")
sketch7.AttachmentSupport = (doc.getObject("XY_Plane"), [""])
sketch7.MapMode = "FlatFace"
sketch7.addGeometry(Part.Circle(App.Vector(-27, -30, 0), App.Vector(0, 0, 1), 1.6), False)
sketch7.addGeometry(Part.Circle(App.Vector(-27, 30, 0), App.Vector(0, 0, 1), 1.6), False)
sketch7.addGeometry(Part.Circle(App.Vector(27, -30, 0), App.Vector(0, 0, 1), 1.6), False)
sketch7.addGeometry(Part.Circle(App.Vector(27, 30, 0), App.Vector(0, 0, 1), 1.6), False)
sketch7.addConstraint(Sketcher.Constraint("Equal", 0, 1))
sketch7.addConstraint(Sketcher.Constraint("Equal", 1, 2))
sketch7.addConstraint(Sketcher.Constraint("Equal", 2, 3))
sketch7.addConstraint(Sketcher.Constraint("Symmetric", 1, 3, 2, 3, -1, 1))
sketch7.addConstraint(Sketcher.Constraint("Symmetric", 0, 3, 3, 3, -1, 1))
sketch7.addConstraint(Sketcher.Constraint("Symmetric", 0, 3, 2, 3, -2))
sketch7.addConstraint(Sketcher.Constraint("Diameter", 0, Q("3.3 mm")))
sketch7.addConstraint(Sketcher.Constraint("DistanceX", 0, 3, -1, 1, Q("27 mm")))
sketch7.addConstraint(Sketcher.Constraint("DistanceY", 0, 3, -1, 1, Q("30 mm")))
pocket4 = body.newObject("PartDesign::Pocket", "Pocket003")
pocket4.Profile = sketch7
pocket4.Length = 5
pocket4.Reversed = True

sketch8 = body.newObject("Sketcher::SketchObject", "Sketch007")
sketch8.AttachmentSupport = (doc.getObject("XY_Plane"), [""])
sketch8.MapMode = "FlatFace"
sketch8.addGeometry(Part.LineSegment(App.Vector(-35, 13, 0), App.Vector(-35, -13, 0)), False)
sketch8.addGeometry(Part.LineSegment(App.Vector(-35, -13, 0), App.Vector(-25, -13, 0)), False)
sketch8.addGeometry(Part.LineSegment(App.Vector(-25, -13, 0), App.Vector(-25, 13, 0)), False)
sketch8.addGeometry(Part.LineSegment(App.Vector(-25, 13, 0), App.Vector(-35, 13, 0)), False)
sketch8.addGeometry(Part.LineSegment(App.Vector(-13, -25, 0), App.Vector(-13, -35, 0)), False)
sketch8.addGeometry(Part.LineSegment(App.Vector(-13, -35, 0), App.Vector(13, -35, 0)), False)
sketch8.addGeometry(Part.LineSegment(App.Vector(13, -35, 0), App.Vector(13, -25, 0)), False)
sketch8.addGeometry(Part.LineSegment(App.Vector(13, -25, 0), App.Vector(-13, -25, 0)), False)
sketch8.addGeometry(Part.LineSegment(App.Vector(25, 13, 0), App.Vector(25, -13, 0)), False)
sketch8.addGeometry(Part.LineSegment(App.Vector(25, -13, 0), App.Vector(35, -13, 0)), False)
sketch8.addGeometry(Part.LineSegment(App.Vector(35, -13, 0), App.Vector(35, 13, 0)), False)
sketch8.addGeometry(Part.LineSegment(App.Vector(35, 13, 0), App.Vector(25, 13, 0)), False)
sketch8.addGeometry(Part.LineSegment(App.Vector(-13, 35, 0), App.Vector(-13, 25, 0)), False)
sketch8.addGeometry(Part.LineSegment(App.Vector(-13, 25, 0), App.Vector(13, 25, 0)), False)
sketch8.addGeometry(Part.LineSegment(App.Vector(13, 25, 0), App.Vector(13, 35, 0)), False)
sketch8.addGeometry(Part.LineSegment(App.Vector(13, 35, 0), App.Vector(-13, 35, 0)), False)
sketch8.addConstraint(Sketcher.Constraint("Coincident", 0, 2, 1, 1))
sketch8.addConstraint(Sketcher.Constraint("Coincident", 1, 2, 2, 1))
sketch8.addConstraint(Sketcher.Constraint("Coincident", 2, 2, 3, 1))
sketch8.addConstraint(Sketcher.Constraint("Coincident", 3, 2, 0, 1))
sketch8.addConstraint(Sketcher.Constraint("Coincident", 4, 2, 5, 1))
sketch8.addConstraint(Sketcher.Constraint("Coincident", 5, 2, 6, 1))
sketch8.addConstraint(Sketcher.Constraint("Coincident", 6, 2, 7, 1))
sketch8.addConstraint(Sketcher.Constraint("Coincident", 7, 2, 4, 1))
sketch8.addConstraint(Sketcher.Constraint("Coincident", 8, 2, 9, 1))
sketch8.addConstraint(Sketcher.Constraint("Coincident", 9, 2, 10, 1))
sketch8.addConstraint(Sketcher.Constraint("Coincident", 10, 2, 11, 1))
sketch8.addConstraint(Sketcher.Constraint("Coincident", 11, 2, 8, 1))
sketch8.addConstraint(Sketcher.Constraint("Coincident", 12, 2, 13, 1))
sketch8.addConstraint(Sketcher.Constraint("Coincident", 13, 2, 14, 1))
sketch8.addConstraint(Sketcher.Constraint("Coincident", 14, 2, 15, 1))
sketch8.addConstraint(Sketcher.Constraint("Coincident", 15, 2, 12, 1))
sketch8.addConstraint(Sketcher.Constraint("Vertical", 0))
sketch8.addConstraint(Sketcher.Constraint("Horizontal", 1))
sketch8.addConstraint(Sketcher.Constraint("Vertical", 2))
sketch8.addConstraint(Sketcher.Constraint("Horizontal", 3))
sketch8.addConstraint(Sketcher.Constraint("Vertical", 4))
sketch8.addConstraint(Sketcher.Constraint("Horizontal", 5))
sketch8.addConstraint(Sketcher.Constraint("Vertical", 6))
sketch8.addConstraint(Sketcher.Constraint("Horizontal", 7))
sketch8.addConstraint(Sketcher.Constraint("Vertical", 8))
sketch8.addConstraint(Sketcher.Constraint("Horizontal", 9))
sketch8.addConstraint(Sketcher.Constraint("Vertical", 10))
sketch8.addConstraint(Sketcher.Constraint("Horizontal", 11))
sketch8.addConstraint(Sketcher.Constraint("Vertical", 12))
sketch8.addConstraint(Sketcher.Constraint("Horizontal", 13))
sketch8.addConstraint(Sketcher.Constraint("Vertical", 14))
sketch8.addConstraint(Sketcher.Constraint("Horizontal", 15))
sketch8.addConstraint(Sketcher.Constraint("Symmetric", 2, 2, 8, 2, -1, 1))
sketch8.addConstraint(Sketcher.Constraint("Symmetric", 0, 2, 10, 2, -1, 1))
sketch8.addConstraint(Sketcher.Constraint("Symmetric", 6, 2, 12, 2, -1, 1))
sketch8.addConstraint(Sketcher.Constraint("Symmetric", 4, 2, 14, 2, -1, 1))
sketch8.addConstraint(Sketcher.Constraint("Horizontal", 1, 2, 8, 2))
sketch8.addConstraint(Sketcher.Constraint("Vertical", 7, 2, 12, 2))
sketch8.addConstraint(Sketcher.Constraint("Equal", 15, 0))
sketch8.addConstraint(Sketcher.Constraint("Equal", 11, 4))
sketch8.addConstraint(Sketcher.Constraint("DistanceX", 1, 1, 1, 2, Q("10 mm")))
sketch8.addConstraint(Sketcher.Constraint("DistanceX", 0, 2, -1, 1, Q("35 mm")))
sketch8.addConstraint(Sketcher.Constraint("DistanceY", 4, 2, -1, 1, Q("35 mm")))
sketch8.addConstraint(Sketcher.Constraint("DistanceX", 5, 1, 5, 2, Q("26.682091 mm")))
pocket5 = body.newObject("PartDesign::Pocket", "Pocket004")
pocket5.Profile = sketch8
pocket5.Length = 5
pocket5.Reversed = True

doc.recompute()
